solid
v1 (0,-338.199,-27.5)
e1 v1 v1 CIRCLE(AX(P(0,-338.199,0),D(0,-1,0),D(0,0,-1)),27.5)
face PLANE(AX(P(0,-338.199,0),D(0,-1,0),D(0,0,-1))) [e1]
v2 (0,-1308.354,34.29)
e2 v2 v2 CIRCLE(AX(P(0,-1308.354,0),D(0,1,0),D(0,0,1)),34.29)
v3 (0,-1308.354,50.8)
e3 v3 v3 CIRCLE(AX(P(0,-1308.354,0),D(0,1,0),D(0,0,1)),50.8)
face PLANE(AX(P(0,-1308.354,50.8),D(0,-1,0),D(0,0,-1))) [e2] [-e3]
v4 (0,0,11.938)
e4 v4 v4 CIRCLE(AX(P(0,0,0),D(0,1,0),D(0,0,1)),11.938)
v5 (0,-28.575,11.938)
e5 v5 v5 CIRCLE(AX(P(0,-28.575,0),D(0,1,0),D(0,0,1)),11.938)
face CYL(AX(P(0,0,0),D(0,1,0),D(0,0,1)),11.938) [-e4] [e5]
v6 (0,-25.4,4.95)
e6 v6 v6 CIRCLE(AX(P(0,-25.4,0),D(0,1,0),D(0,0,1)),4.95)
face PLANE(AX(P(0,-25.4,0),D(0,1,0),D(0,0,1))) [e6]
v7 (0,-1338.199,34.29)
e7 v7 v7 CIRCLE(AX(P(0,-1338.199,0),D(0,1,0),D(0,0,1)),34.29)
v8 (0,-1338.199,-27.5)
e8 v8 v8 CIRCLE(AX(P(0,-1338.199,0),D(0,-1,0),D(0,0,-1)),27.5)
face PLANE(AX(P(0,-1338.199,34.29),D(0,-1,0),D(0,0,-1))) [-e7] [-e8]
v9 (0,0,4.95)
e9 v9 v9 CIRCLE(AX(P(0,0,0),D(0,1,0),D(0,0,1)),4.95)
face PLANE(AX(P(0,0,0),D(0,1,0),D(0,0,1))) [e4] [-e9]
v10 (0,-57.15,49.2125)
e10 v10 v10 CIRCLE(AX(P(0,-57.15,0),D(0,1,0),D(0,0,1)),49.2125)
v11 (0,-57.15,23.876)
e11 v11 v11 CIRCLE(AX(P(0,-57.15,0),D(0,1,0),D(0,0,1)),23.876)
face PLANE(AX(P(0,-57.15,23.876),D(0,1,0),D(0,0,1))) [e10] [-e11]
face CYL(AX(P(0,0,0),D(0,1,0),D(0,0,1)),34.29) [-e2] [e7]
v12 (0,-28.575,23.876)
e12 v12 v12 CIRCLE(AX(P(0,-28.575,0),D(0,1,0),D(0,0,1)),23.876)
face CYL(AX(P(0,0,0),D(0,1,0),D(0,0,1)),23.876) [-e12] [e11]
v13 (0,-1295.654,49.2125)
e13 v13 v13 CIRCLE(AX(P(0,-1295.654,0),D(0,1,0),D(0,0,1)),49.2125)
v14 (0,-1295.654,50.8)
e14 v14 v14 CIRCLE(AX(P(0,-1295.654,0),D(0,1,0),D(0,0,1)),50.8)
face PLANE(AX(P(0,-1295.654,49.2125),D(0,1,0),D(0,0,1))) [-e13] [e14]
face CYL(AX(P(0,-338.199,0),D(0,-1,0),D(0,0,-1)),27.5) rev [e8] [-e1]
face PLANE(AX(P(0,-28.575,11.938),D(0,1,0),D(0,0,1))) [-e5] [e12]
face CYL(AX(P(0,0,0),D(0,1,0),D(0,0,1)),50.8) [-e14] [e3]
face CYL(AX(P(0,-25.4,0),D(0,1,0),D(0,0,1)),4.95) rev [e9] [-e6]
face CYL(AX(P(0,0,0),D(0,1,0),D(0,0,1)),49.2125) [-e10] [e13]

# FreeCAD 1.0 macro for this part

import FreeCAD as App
import Part
import Sketcher
Q = App.Units.Quantity


def add_polygon(sketch, points):
    """Adds a closed chain of lines whose ends are joined by coincident constraints."""
    first, n = sketch.GeometryCount, len(points)
    for a, b in zip(points, points[1:] + points[:1]):
        sketch.addGeometry(Part.LineSegment(App.Vector(*a, 0), App.Vector(*b, 0)), False)
    for i in range(n):
        sketch.addConstraint(Sketcher.Constraint("Coincident", first + i, 2, first + (i + 1) % n, 1))

doc = App.newDocument("Part")
body = doc.addObject("PartDesign::Body", "Body")

sketch1 = body.newObject("Sketcher::SketchObject", "Sketch")
sketch1.AttachmentSupport = (doc.getObject("YZ_Plane"), [""])
sketch1.MapMode = "FlatFace"
add_polygon(sketch1, [(0, 0), (0, 11.9), (-28.6, 11.9), (-28.6, 23.9), (-57.1, 23.9), (-57.1, 49.2), (-1295.7, 49.2), (-1295.7, 50.8), (-1308.4, 50.8), (-1308.4, 34.3), (-1338.2, 34.3), (-1338.2, 0)])
sketch1.addConstraint([
    Sketcher.Constraint("Vertical", 0),
    Sketcher.Constraint("Horizontal", 1),
    Sketcher.Constraint("Vertical", 2),
    Sketcher.Constraint("Horizontal", 3),
    Sketcher.Constraint("Vertical", 4),
    Sketcher.Constraint("Horizontal", 5),
    Sketcher.Constraint("Vertical", 6),
    Sketcher.Constraint("Horizontal", 7),
    Sketcher.Constraint("Vertical", 8),
    Sketcher.Constraint("Horizontal", 9),
    Sketcher.Constraint("Vertical", 10),
    Sketcher.Constraint("Horizontal", 11),
    Sketcher.Constraint("Coincident", 11, 2, -1, 1),
    Sketcher.Constraint("Equal", 1, 3),
    Sketcher.Constraint("Equal", 0, 2),
    Sketcher.Constraint("DistanceX", 7, 2, 7, 1, Q("0.5 in")),
    Sketcher.Constraint("DistanceY", -1, 1, 6, 2, Q("2 in")),
    Sketcher.Constraint("DistanceX", 5, 2, 5, 1, Q("48.76 in")),
    Sketcher.Constraint("DistanceY", 0, 1, 0, 2, Q("0.47 in")),
    Sketcher.Constraint("DistanceY", 8, 2, 8, 1, Q("0.65 in")),
    Sketcher.Constraint("DistanceX", 1, 2, 1, 1, Q("1.125 in")),
    Sketcher.Constraint("DistanceX", 9, 2, 9, 1, Q("1.175 in")),
    Sketcher.Constraint("DistanceY", 6, 1, 6, 2, Q("0.0625 in")),
])
revolution = body.newObject("PartDesign::Revolution", "Revolution")
revolution.Profile = sketch1
revolution.ReferenceAxis = (sketch1, ["H_Axis"])
revolution.Angle = 360

sketch2 = body.newObject("Sketcher::SketchObject", "Sketch001")
sketch2.AttachmentSupport = (doc.getObject("XZ_Plane"), [""])
sketch2.MapMode = "FlatFace"
sketch2.addGeometry(Part.Circle(App.Vector(0, 0, 0), App.Vector(0, 0, 1), 5), False)
sketch2.addConstraint([
    Sketcher.Constraint("Coincident", 0, 3, -1, 1),
    Sketcher.Constraint("Diameter", 0, 9.9),
])
pocket1 = body.newObject("PartDesign::Pocket", "Pocket")
pocket1.Profile = sketch2
pocket1.Length = Q("1 in")
pocket1.Reversed = True

sketch3 = body.newObject("Sketcher::SketchObject", "Sketch002")
sketch3.AttachmentSupport = (doc.getObject("XZ_Plane"), [""])
sketch3.MapMode = "FlatFace"
sketch3.AttachmentOffset = App.Placement(App.Vector(0, 0, 52.685 * 25.4), App.Rotation())
sketch3.addGeometry(Part.Circle(App.Vector(0, 0, 0), App.Vector(0, 0, 1), 28), False)
sketch3.addConstraint([
    Sketcher.Constraint("Coincident", 0, 3, -1, 1),
    Sketcher.Constraint("Diameter", 0, 55.0),
])
pocket2 = body.newObject("PartDesign::Pocket", "Pocket001")
pocket2.Profile = sketch3
pocket2.Length = 1000

doc.recompute()
